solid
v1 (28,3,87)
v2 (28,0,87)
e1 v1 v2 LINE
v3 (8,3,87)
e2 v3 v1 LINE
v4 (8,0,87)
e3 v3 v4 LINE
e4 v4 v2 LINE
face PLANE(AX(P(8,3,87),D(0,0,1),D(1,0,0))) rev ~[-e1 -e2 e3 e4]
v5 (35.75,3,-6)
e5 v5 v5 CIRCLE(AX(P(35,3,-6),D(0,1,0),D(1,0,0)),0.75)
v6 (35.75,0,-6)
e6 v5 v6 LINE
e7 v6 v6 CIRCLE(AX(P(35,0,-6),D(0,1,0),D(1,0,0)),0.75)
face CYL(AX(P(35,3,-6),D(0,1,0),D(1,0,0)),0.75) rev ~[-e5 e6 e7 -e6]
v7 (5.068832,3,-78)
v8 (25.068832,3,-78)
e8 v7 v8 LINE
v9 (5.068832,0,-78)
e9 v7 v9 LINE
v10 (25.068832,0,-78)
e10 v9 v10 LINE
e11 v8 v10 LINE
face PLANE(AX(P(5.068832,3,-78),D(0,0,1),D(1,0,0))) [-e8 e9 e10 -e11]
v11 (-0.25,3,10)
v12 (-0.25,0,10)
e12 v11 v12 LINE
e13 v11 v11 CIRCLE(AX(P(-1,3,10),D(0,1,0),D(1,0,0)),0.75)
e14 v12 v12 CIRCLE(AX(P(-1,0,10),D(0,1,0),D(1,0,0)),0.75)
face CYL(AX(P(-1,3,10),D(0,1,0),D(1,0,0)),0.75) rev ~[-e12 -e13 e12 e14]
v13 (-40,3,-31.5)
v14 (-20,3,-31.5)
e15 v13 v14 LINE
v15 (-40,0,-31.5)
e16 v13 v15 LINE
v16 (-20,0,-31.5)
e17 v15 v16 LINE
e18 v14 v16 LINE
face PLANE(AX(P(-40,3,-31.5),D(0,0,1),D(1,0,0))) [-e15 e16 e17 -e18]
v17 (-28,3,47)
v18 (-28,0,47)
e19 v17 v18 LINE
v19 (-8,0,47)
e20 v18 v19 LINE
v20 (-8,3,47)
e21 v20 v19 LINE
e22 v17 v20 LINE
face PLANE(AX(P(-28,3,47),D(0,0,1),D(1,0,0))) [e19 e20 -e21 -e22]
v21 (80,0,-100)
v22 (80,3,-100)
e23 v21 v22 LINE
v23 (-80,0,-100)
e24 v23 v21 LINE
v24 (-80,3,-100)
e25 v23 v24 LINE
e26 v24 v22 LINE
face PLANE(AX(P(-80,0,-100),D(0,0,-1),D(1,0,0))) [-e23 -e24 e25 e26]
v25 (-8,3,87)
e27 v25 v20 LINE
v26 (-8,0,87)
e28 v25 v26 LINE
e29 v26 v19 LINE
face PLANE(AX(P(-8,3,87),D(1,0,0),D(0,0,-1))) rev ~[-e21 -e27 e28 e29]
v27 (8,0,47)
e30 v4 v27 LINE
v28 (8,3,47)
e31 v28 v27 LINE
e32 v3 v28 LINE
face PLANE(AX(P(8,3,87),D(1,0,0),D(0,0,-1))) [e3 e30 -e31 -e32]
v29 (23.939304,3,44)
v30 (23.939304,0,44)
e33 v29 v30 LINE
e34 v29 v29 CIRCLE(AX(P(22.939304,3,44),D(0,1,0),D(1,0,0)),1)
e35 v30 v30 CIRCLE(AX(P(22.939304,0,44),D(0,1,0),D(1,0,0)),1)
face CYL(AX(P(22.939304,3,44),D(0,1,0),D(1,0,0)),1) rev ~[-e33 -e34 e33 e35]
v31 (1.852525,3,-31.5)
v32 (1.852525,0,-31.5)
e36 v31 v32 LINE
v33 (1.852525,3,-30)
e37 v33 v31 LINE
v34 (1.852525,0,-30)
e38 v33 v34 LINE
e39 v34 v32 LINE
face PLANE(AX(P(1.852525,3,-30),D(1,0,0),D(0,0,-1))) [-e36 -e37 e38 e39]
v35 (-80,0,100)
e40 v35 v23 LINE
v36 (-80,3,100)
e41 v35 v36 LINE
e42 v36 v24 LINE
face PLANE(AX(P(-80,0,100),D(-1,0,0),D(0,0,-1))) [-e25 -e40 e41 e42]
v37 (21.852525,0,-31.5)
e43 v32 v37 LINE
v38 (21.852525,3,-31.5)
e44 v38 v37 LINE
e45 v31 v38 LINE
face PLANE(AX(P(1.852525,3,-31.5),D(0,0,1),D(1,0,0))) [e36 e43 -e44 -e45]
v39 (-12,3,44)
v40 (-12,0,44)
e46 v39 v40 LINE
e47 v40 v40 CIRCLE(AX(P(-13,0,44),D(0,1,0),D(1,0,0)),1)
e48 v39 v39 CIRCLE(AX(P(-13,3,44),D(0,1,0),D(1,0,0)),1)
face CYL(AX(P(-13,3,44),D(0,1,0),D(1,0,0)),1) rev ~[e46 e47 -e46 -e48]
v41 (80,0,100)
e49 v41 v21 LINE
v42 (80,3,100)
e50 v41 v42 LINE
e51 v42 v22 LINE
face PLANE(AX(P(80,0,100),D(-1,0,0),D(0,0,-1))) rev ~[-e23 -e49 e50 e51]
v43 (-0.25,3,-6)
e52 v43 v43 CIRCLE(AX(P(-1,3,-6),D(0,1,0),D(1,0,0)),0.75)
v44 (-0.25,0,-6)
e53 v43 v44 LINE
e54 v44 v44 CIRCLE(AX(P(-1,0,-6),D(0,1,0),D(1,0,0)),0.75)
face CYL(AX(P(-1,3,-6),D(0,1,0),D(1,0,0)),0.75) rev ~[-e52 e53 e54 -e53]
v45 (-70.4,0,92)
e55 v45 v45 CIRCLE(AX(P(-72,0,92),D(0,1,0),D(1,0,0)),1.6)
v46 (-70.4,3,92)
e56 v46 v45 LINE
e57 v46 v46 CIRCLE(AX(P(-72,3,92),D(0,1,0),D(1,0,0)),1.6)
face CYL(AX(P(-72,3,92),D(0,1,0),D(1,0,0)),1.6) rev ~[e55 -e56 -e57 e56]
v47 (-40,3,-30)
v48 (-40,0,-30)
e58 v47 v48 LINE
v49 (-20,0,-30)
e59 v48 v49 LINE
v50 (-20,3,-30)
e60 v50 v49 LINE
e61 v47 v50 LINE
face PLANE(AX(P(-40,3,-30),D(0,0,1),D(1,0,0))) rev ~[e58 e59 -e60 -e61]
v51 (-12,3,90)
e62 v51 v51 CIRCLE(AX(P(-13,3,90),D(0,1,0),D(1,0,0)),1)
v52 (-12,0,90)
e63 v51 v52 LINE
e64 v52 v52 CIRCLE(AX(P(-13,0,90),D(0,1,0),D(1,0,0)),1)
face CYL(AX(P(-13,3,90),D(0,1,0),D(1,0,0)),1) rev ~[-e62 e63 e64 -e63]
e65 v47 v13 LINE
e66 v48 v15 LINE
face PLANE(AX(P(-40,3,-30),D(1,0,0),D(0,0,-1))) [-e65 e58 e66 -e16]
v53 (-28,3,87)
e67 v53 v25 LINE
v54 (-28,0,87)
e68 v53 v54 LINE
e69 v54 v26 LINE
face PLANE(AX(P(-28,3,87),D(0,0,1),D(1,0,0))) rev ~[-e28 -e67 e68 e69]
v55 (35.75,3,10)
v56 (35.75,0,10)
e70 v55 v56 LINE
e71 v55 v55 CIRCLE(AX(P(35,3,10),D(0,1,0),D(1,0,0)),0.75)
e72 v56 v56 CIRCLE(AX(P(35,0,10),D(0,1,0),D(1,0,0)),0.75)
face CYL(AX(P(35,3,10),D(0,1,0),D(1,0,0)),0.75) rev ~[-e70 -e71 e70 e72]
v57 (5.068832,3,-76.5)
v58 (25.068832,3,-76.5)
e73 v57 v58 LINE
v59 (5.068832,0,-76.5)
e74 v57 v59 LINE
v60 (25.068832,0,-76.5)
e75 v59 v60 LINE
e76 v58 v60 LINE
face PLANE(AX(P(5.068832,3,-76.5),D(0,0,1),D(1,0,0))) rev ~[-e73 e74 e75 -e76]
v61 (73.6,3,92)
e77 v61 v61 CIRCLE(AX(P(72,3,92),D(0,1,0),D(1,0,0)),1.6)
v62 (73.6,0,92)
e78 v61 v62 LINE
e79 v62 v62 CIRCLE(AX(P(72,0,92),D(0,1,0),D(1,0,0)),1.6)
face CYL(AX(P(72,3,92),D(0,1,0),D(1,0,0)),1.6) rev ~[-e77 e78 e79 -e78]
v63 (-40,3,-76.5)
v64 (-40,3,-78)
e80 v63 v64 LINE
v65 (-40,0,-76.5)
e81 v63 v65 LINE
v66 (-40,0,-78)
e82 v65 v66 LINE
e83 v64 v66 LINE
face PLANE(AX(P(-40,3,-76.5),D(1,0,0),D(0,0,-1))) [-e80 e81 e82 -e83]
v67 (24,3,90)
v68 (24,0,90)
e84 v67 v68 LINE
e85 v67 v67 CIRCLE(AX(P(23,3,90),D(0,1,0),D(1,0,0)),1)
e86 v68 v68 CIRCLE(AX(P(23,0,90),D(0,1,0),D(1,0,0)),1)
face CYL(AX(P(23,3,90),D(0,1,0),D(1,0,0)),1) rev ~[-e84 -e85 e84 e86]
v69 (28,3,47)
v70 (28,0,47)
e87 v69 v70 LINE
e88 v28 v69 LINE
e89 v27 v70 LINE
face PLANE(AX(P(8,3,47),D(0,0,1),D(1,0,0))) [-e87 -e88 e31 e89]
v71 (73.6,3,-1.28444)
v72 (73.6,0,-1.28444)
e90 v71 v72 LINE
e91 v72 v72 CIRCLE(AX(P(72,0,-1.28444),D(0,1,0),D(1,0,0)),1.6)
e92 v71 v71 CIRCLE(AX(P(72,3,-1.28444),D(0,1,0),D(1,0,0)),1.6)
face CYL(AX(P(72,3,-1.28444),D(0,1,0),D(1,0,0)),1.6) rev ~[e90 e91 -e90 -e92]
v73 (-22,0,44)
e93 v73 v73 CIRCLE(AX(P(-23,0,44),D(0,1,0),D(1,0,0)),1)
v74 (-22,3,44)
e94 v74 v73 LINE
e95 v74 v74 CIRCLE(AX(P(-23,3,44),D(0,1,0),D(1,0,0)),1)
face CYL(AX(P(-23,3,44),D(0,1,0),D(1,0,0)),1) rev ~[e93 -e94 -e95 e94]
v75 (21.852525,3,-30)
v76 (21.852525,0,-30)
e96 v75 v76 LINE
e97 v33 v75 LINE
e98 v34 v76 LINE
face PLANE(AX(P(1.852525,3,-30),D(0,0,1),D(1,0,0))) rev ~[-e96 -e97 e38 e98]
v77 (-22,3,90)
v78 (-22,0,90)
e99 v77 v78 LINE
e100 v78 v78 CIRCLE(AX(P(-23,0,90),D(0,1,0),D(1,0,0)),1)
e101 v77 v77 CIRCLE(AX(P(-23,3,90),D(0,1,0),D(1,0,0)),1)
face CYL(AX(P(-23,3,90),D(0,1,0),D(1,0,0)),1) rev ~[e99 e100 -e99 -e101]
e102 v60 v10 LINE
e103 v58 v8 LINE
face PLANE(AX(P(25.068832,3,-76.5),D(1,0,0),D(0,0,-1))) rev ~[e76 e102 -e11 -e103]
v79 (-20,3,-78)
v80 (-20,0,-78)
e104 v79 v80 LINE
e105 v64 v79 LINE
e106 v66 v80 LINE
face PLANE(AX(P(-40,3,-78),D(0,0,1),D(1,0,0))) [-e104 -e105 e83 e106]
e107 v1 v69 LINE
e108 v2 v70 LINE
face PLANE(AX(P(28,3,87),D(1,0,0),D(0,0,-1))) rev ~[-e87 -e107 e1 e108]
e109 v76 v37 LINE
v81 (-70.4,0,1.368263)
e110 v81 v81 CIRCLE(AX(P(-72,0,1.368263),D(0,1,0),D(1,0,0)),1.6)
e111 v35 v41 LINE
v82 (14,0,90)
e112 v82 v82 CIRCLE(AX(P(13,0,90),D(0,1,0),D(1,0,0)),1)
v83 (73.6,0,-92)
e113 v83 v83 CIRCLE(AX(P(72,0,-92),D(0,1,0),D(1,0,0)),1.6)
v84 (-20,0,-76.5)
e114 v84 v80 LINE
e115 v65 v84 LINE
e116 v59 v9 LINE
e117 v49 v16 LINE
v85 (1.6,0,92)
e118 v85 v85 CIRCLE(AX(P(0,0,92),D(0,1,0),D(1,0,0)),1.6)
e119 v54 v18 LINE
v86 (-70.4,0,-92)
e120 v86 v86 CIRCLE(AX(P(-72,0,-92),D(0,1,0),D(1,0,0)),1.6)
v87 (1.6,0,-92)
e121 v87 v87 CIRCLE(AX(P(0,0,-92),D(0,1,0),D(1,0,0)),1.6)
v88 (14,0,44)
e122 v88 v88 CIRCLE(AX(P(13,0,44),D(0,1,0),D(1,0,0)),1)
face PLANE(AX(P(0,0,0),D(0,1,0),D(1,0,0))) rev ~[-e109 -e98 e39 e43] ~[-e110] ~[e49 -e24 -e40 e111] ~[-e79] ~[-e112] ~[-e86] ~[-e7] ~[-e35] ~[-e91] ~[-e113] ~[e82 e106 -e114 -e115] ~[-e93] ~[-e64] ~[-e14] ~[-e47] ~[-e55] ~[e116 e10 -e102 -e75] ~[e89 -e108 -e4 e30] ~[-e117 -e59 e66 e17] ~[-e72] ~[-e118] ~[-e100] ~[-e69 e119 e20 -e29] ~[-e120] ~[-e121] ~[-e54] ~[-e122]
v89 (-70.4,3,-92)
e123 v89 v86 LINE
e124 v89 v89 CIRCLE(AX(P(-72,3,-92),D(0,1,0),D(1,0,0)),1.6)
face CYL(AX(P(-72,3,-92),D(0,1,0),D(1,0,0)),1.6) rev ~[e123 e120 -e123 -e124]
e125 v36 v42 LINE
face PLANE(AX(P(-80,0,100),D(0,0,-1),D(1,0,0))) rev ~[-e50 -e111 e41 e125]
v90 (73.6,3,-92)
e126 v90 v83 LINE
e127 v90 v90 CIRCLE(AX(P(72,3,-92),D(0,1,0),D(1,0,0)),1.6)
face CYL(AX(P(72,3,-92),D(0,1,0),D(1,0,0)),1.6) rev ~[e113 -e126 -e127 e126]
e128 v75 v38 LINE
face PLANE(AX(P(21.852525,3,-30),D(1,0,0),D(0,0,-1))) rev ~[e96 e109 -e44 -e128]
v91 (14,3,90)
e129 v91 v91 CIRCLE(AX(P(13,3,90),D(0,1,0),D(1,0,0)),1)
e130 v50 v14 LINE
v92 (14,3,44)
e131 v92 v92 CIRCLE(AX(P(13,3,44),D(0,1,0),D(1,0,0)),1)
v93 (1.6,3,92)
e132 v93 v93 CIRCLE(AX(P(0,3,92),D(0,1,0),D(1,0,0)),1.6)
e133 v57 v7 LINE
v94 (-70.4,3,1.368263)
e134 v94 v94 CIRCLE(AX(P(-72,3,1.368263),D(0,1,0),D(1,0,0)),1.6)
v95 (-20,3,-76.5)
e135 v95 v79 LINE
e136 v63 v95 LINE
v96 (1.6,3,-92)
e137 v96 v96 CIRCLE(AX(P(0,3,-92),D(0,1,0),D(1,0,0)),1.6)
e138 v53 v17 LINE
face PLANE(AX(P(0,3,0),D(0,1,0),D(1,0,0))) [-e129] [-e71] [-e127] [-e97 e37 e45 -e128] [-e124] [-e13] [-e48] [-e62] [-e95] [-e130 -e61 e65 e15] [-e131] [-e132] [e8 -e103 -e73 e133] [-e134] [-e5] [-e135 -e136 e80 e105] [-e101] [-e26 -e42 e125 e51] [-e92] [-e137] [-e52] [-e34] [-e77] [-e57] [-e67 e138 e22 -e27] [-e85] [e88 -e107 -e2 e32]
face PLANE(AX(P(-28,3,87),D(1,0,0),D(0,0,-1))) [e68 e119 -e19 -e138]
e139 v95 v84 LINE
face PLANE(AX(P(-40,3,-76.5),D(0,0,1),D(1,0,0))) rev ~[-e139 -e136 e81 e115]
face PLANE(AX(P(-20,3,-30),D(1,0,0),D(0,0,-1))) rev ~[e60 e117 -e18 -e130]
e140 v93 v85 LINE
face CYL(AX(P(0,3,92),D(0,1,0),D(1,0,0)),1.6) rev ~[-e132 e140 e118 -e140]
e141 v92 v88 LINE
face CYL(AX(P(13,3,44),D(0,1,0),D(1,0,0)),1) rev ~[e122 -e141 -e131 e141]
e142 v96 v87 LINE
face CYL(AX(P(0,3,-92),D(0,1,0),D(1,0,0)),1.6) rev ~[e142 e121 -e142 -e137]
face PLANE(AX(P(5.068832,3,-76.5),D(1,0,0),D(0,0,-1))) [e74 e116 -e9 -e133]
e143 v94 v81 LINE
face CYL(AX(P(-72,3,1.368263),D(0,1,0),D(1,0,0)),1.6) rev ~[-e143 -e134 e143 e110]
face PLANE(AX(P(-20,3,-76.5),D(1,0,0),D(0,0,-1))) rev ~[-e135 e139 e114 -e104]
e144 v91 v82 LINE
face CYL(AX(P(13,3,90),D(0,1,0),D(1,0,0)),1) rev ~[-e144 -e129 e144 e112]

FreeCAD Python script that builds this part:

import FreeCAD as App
import Part
import Sketcher

doc = App.newDocument("Part")
body = doc.addObject("PartDesign::Body", "Body")

# Sketch on XZ plane
sketch1 = body.newObject("Sketcher::SketchObject", "Sketch")
sketch1.AttachmentSupport = (doc.getObject("XZ_Plane"), [""])
sketch1.MapMode = "FlatFace"
sketch1.addGeometry([
    Part.LineSegment(App.Vector(-80, -100, 0), App.Vector(-80, 100, 0)),
    Part.LineSegment(App.Vector(-80, 100, 0), App.Vector(80, 100, 0)),
    Part.LineSegment(App.Vector(80, 100, 0), App.Vector(80, -100, 0)),
    Part.LineSegment(App.Vector(80, -100, 0), App.Vector(-80, -100, 0)),
], False)
sketch1.addConstraint([
    Sketcher.Constraint("Coincident", 0, 2, 1, 1),
    Sketcher.Constraint("Coincident", 1, 2, 2, 1),
    Sketcher.Constraint("Coincident", 2, 2, 3, 1),
    Sketcher.Constraint("Coincident", 3, 2, 0, 1),
    Sketcher.Constraint("Vertical", 0),
    Sketcher.Constraint("Horizontal", 1),
    Sketcher.Constraint("Vertical", 2),
    Sketcher.Constraint("Horizontal", 3),
    Sketcher.Constraint("Symmetric", 0, 2, 2, 2, -1, 1),
    Sketcher.Constraint("DistanceX", 1, 1, 1, 2, 160.0),
    Sketcher.Constraint("DistanceY", 0, 1, 0, 2, 200.0),
])
pad1 = body.newObject("PartDesign::Pad", "Pad")
pad1.Profile = sketch1
pad1.Length = 3
pad1.Reversed = True

# Sketch on XZ plane
sketch2 = body.newObject("Sketcher::SketchObject", "Sketch001")
sketch2.AttachmentSupport = (doc.getObject("XZ_Plane"), [""])
sketch2.MapMode = "FlatFace"
sketch2.AttachmentOffset = App.Placement(App.Vector(0, 0, -3), App.Rotation())
sketch2.addGeometry([
    Part.Circle(App.Vector(23, 90, 0), App.Vector(0, 0, 1), 1),  # 0
    Part.Circle(App.Vector(13, 44, 0), App.Vector(0, 0, 1), 1),  # 1
    Part.Circle(App.Vector(-23, 90, 0), App.Vector(0, 0, 1), 1),  # 2
    Part.Circle(App.Vector(-23, 44, 0), App.Vector(0, 0, 1), 1),  # 3
    Part.Circle(App.Vector(-13, 44, 0), App.Vector(0, 0, 1), 1),  # 4
    Part.Circle(App.Vector(-13, 90, 0), App.Vector(0, 0, 1), 1),  # 5
    Part.Circle(App.Vector(13, 90, 0), App.Vector(0, 0, 1), 1),  # 6
    Part.Circle(App.Vector(22.939304, 44, 0), App.Vector(0, 0, 1), 1),  # 7
    Part.LineSegment(App.Vector(-28, 47, 0), App.Vector(-28, 87, 0)),  # 8
    Part.LineSegment(App.Vector(-28, 87, 0), App.Vector(-8, 87, 0)),  # 9
    Part.LineSegment(App.Vector(-8, 87, 0), App.Vector(-8, 47, 0)),  # 10
    Part.LineSegment(App.Vector(-8, 47, 0), App.Vector(-28, 47, 0)),  # 11
    Part.LineSegment(App.Vector(8, 47, 0), App.Vector(8, 87, 0)),  # 12
    Part.LineSegment(App.Vector(8, 87, 0), App.Vector(28, 87, 0)),  # 13
    Part.LineSegment(App.Vector(28, 87, 0), App.Vector(28, 47, 0)),  # 14
    Part.LineSegment(App.Vector(28, 47, 0), App.Vector(8, 47, 0)),  # 15
], False)
sketch2.addConstraint([
    Sketcher.Constraint("Coincident", 8, 2, 9, 1),
    Sketcher.Constraint("Coincident", 9, 2, 10, 1),
    Sketcher.Constraint("Coincident", 10, 2, 11, 1),
    Sketcher.Constraint("Coincident", 11, 2, 8, 1),
    Sketcher.Constraint("Coincident", 12, 2, 13, 1),
    Sketcher.Constraint("Coincident", 13, 2, 14, 1),
    Sketcher.Constraint("Coincident", 14, 2, 15, 1),
    Sketcher.Constraint("Coincident", 15, 2, 12, 1),
    Sketcher.Constraint("Vertical", 8),
    Sketcher.Constraint("Horizontal", 9),
    Sketcher.Constraint("Vertical", 10),
    Sketcher.Constraint("Horizontal", 11),
    Sketcher.Constraint("Vertical", 12),
    Sketcher.Constraint("Horizontal", 13),
    Sketcher.Constraint("Vertical", 14),
    Sketcher.Constraint("Horizontal", 15),
    Sketcher.Constraint("Equal", 0, 1),
    Sketcher.Constraint("Equal", 1, 2),
    Sketcher.Constraint("Equal", 2, 3),
    Sketcher.Constraint("Equal", 3, 4),
    Sketcher.Constraint("Equal", 4, 5),
    Sketcher.Constraint("Equal", 5, 6),
    Sketcher.Constraint("Equal", 6, 7),
    Sketcher.Constraint("Symmetric", 0, 3, 2, 3, -2),
    Sketcher.Constraint("Symmetric", 1, 3, 4, 3, -2),
    Sketcher.Constraint("Symmetric", 5, 3, 6, 3, -2),
    Sketcher.Constraint("Symmetric", 9, 2, 12, 2, -2),
    Sketcher.Constraint("Symmetric", 11, 2, 14, 2, -2),
    Sketcher.Constraint("Horizontal", 1, 3, 3, 3),
    Sketcher.Constraint("Horizontal", 2, 3, 5, 3),
    Sketcher.Constraint("Horizontal", 4, 3, 7, 3),
    Sketcher.Constraint("Vertical", 2, 3, 3, 3),
    Sketcher.Constraint("Vertical", 4, 3, 5, 3),
    Sketcher.Constraint("Diameter", 0, 2.0),
    Sketcher.Constraint("DistanceX", 9, 1, 9, 2, 20.0),
    Sketcher.Constraint("DistanceY", 8, 1, 8, 2, 40.0),
    Sketcher.Constraint("DistanceX", -1, 1, 0, 3, 23.0),
    Sketcher.Constraint("DistanceY", -1, 1, 0, 3, 90.0),
    Sketcher.Constraint("DistanceX", -1, 1, 1, 3, 13.0),
    Sketcher.Constraint("DistanceY", -1, 1, 1, 3, 44.0),
    Sketcher.Constraint("DistanceX", 8, 2, -1, 1, 28.0),
    Sketcher.Constraint("DistanceY", -1, 1, 8, 2, 87.0),
    Sketcher.Constraint("DistanceX", -1, 1, 7, 3, 22.939304),
])
pocket1 = body.newObject("PartDesign::Pocket", "Pocket")
pocket1.Profile = sketch2
pocket1.Length = 3
pocket1.Reversed = True

# Sketch on XZ plane
sketch3 = body.newObject("Sketcher::SketchObject", "Sketch002")
sketch3.AttachmentSupport = (doc.getObject("XZ_Plane"), [""])
sketch3.MapMode = "FlatFace"
sketch3.AttachmentOffset = App.Placement(App.Vector(0, 0, -3), App.Rotation())
sketch3.addGeometry([
    Part.Circle(App.Vector(35, 10, 0), App.Vector(0, 0, 1), 0.75),
    Part.Circle(App.Vector(35, -6, 0), App.Vector(0, 0, 1), 0.75),
    Part.Circle(App.Vector(-1, 10, 0), App.Vector(0, 0, 1), 0.75),
    Part.Circle(App.Vector(-1, -6, 0), App.Vector(0, 0, 1), 0.75),
], False)
sketch3.addConstraint([
    Sketcher.Constraint("Equal", 0, 1),
    Sketcher.Constraint("Equal", 1, 2),
    Sketcher.Constraint("Equal", 2, 3),
    Sketcher.Constraint("Horizontal", 0, 3, 2, 3),
    Sketcher.Constraint("Horizontal", 1, 3, 3, 3),
    Sketcher.Constraint("Vertical", 0, 3, 1, 3),
    Sketcher.Constraint("Vertical", 2, 3, 3, 3),
    Sketcher.Constraint("Diameter", 0, 1.5),
    Sketcher.Constraint("DistanceX", -1, 1, 0, 3, 35.0),
    Sketcher.Constraint("DistanceY", -1, 1, 0, 3, 10.0),
    Sketcher.Constraint("DistanceY", 1, 3, -1, 1, 6.0),
    Sketcher.Constraint("DistanceX", 2, 3, -1, 1, 1.0),
])
pocket2 = body.newObject("PartDesign::Pocket", "Pocket001")
pocket2.Profile = sketch3
pocket2.Length = 10
pocket2.Reversed = True

# Sketch on XZ plane
sketch4 = body.newObject("Sketcher::SketchObject", "Sketch003")
sketch4.AttachmentSupport = (doc.getObject("XZ_Plane"), [""])
sketch4.MapMode = "FlatFace"
sketch4.AttachmentOffset = App.Placement(App.Vector(0, 0, -3), App.Rotation())
sketch4.addGeometry([
    Part.Circle(App.Vector(72, -1.28444, 0), App.Vector(0, 0, 1), 1.6),  # 0
    Part.Circle(App.Vector(-72, 1.368263, 0), App.Vector(0, 0, 1), 1.6),  # 1
    Part.Circle(App.Vector(72, -92, 0), App.Vector(0, 0, 1), 1.6),  # 2
    Part.Circle(App.Vector(-72, -92, 0), App.Vector(0, 0, 1), 1.6),  # 3
    Part.Circle(App.Vector(-72, 92, 0), App.Vector(0, 0, 1), 1.6),  # 4
    Part.Circle(App.Vector(72, 92, 0), App.Vector(0, 0, 1), 1.6),  # 5
    Part.Circle(App.Vector(0, 92, 0), App.Vector(0, 0, 1), 1.6),  # 6
    Part.Circle(App.Vector(0, -92, 0), App.Vector(0, 0, 1), 1.6),  # 7
], False)
sketch4.addConstraint([
    Sketcher.Constraint("Equal", 0, 1),
    Sketcher.Constraint("Equal", 1, 2),
    Sketcher.Constraint("Equal", 2, 3),
    Sketcher.Constraint("Equal", 3, 4),
    Sketcher.Constraint("Equal", 4, 5),
    Sketcher.Constraint("Equal", 5, 6),
    Sketcher.Constraint("Equal", 6, 7),
    Sketcher.Constraint("Symmetric", 2, 3, 4, 3, -1, 1),
    Sketcher.Constraint("Symmetric", 3, 3, 5, 3, -1, 1),
    Sketcher.Constraint("Symmetric", 6, 3, 7, 3, -1, 1),
    Sketcher.Constraint("Symmetric", 2, 3, 3, 3, -2),
    Sketcher.Constraint("PointOnObject", 6, 3, -2),
    Sketcher.Constraint("Horizontal", 5, 3, 6, 3),
    Sketcher.Constraint("Vertical", 0, 3, 2, 3),
    Sketcher.Constraint("Vertical", 1, 3, 3, 3),
    Sketcher.Constraint("Diameter", 0, 3.2),
    Sketcher.Constraint("DistanceX", -1, 1, 0, 3, 72.0),
    Sketcher.Constraint("DistanceY", 2, 3, -1, 1, 92.0),
    Sketcher.Constraint("DistanceY", 0, 3, -1, 1, 1.28444),
    Sketcher.Constraint("DistanceY", -1, 1, 1, 3, 1.368263),
])
pocket3 = body.newObject("PartDesign::Pocket", "Pocket002")
pocket3.Profile = sketch4
pocket3.Length = 10
pocket3.Reversed = True

# Sketch on XZ plane
sketch5 = body.newObject("Sketcher::SketchObject", "Sketch004")
sketch5.AttachmentSupport = (doc.getObject("XZ_Plane"), [""])
sketch5.MapMode = "FlatFace"
sketch5.AttachmentOffset = App.Placement(App.Vector(0, 0, -3), App.Rotation())
sketch5.addGeometry([
    Part.LineSegment(App.Vector(-40, -78, 0), App.Vector(-40, -76.5, 0)),  # 0
    Part.LineSegment(App.Vector(-40, -76.5, 0), App.Vector(-20, -76.5, 0)),  # 1
    Part.LineSegment(App.Vector(-20, -76.5, 0), App.Vector(-20, -78, 0)),  # 2
    Part.LineSegment(App.Vector(-20, -78, 0), App.Vector(-40, -78, 0)),  # 3
    Part.LineSegment(App.Vector(-40, -31.5, 0), App.Vector(-40, -30, 0)),  # 4
    Part.LineSegment(App.Vector(-40, -30, 0), App.Vector(-20, -30, 0)),  # 5
    Part.LineSegment(App.Vector(-20, -30, 0), App.Vector(-20, -31.5, 0)),  # 6
    Part.LineSegment(App.Vector(-20, -31.5, 0), App.Vector(-40, -31.5, 0)),  # 7
    Part.LineSegment(App.Vector(5.068832, -78, 0), App.Vector(5.068832, -76.5, 0)),  # 8
    Part.LineSegment(App.Vector(5.068832, -76.5, 0), App.Vector(25.068832, -76.5, 0)),  # 9
    Part.LineSegment(App.Vector(25.068832, -76.5, 0), App.Vector(25.068832, -78, 0)),  # 10
    Part.LineSegment(App.Vector(25.068832, -78, 0), App.Vector(5.068832, -78, 0)),  # 11
    Part.LineSegment(App.Vector(1.852525, -31.5, 0), App.Vector(1.852525, -30, 0)),  # 12
    Part.LineSegment(App.Vector(1.852525, -30, 0), App.Vector(21.852525, -30, 0)),  # 13
    Part.LineSegment(App.Vector(21.852525, -30, 0), App.Vector(21.852525, -31.5, 0)),  # 14
    Part.LineSegment(App.Vector(21.852525, -31.5, 0), App.Vector(1.852525, -31.5, 0)),  # 15
], False)
sketch5.addConstraint([
    Sketcher.Constraint("Coincident", 0, 2, 1, 1),
    Sketcher.Constraint("Coincident", 1, 2, 2, 1),
    Sketcher.Constraint("Coincident", 2, 2, 3, 1),
    Sketcher.Constraint("Coincident", 3, 2, 0, 1),
    Sketcher.Constraint("Coincident", 4, 2, 5, 1),
    Sketcher.Constraint("Coincident", 5, 2, 6, 1),
    Sketcher.Constraint("Coincident", 6, 2, 7, 1),
    Sketcher.Constraint("Coincident", 7, 2, 4, 1),
    Sketcher.Constraint("Coincident", 8, 2, 9, 1),
    Sketcher.Constraint("Coincident", 9, 2, 10, 1),
    Sketcher.Constraint("Coincident", 10, 2, 11, 1),
    Sketcher.Constraint("Coincident", 11, 2, 8, 1),
    Sketcher.Constraint("Coincident", 12, 2, 13, 1),
    Sketcher.Constraint("Coincident", 13, 2, 14, 1),
    Sketcher.Constraint("Coincident", 14, 2, 15, 1),
    Sketcher.Constraint("Coincident", 15, 2, 12, 1),
    Sketcher.Constraint("Vertical", 0),
    Sketcher.Constraint("Horizontal", 1),
    Sketcher.Constraint("Vertical", 2),
    Sketcher.Constraint("Horizontal", 3),
    Sketcher.Constraint("Vertical", 4),
    Sketcher.Constraint("Horizontal", 5),
    Sketcher.Constraint("Vertical", 6),
    Sketcher.Constraint("Horizontal", 7),
    Sketcher.Constraint("Vertical", 8),
    Sketcher.Constraint("Horizontal", 9),
    Sketcher.Constraint("Vertical", 10),
    Sketcher.Constraint("Horizontal", 11),
    Sketcher.Constraint("Vertical", 12),
    Sketcher.Constraint("Horizontal", 13),
    Sketcher.Constraint("Vertical", 14),
    Sketcher.Constraint("Horizontal", 15),
    Sketcher.Constraint("Horizontal", 1, 2, 8, 2),
    Sketcher.Constraint("Horizontal", 3, 2, 10, 2),
    Sketcher.Constraint("Horizontal", 5, 2, 12, 2),
    Sketcher.Constraint("Horizontal", 7, 2, 14, 2),
    Sketcher.Constraint("Vertical", 3, 2, 4, 2),
    Sketcher.Constraint("Vertical", 2, 2, 5, 2),
    Sketcher.Constraint("Equal", 7, 9),
    Sketcher.Constraint("Equal", 11, 13),
    Sketcher.Constraint("Equal", 2, 4),
    Sketcher.Constraint("DistanceX", 1, 1, 1, 2, 20.0),
    Sketcher.Constraint("DistanceY", 0, 1, 0, 2, 1.5),
    Sketcher.Constraint("DistanceX", 0, 2, -1, 1, 40.0),
    Sketcher.Constraint("DistanceY", 2, 2, -1, 1, 78.0),
    Sketcher.Constraint("DistanceY", 4, 2, -1, 1, 30.0),
    Sketcher.Constraint("DistanceX", -1, 1, 8, 2, 5.068832),
    Sketcher.Constraint("DistanceX", -1, 1, 12, 2, 1.852525),
])
pocket4 = body.newObject("PartDesign::Pocket", "Pocket003")
pocket4.Profile = sketch5
pocket4.Length = 10
pocket4.Reversed = True

doc.recompute()
